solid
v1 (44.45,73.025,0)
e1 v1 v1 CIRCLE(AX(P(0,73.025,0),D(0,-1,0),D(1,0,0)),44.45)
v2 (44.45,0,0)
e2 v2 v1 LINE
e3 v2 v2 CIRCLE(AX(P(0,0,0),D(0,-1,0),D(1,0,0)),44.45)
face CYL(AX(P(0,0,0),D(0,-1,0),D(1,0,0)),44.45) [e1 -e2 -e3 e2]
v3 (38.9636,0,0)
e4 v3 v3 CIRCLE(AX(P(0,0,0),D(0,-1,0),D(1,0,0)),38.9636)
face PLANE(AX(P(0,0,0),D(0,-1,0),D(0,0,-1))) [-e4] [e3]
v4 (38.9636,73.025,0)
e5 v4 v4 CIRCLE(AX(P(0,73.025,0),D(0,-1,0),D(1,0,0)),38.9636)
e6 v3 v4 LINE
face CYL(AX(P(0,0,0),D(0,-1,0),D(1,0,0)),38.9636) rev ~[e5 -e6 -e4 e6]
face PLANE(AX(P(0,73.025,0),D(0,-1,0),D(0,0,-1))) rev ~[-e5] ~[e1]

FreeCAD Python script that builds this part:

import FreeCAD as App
import Part
import Sketcher
Q = App.Units.Quantity

doc = App.newDocument("Part")
body = doc.addObject("PartDesign::Body", "Body")

# Sketch on XZ plane
sketch1 = body.newObject("Sketcher::SketchObject", "Sketch")
sketch1.AttachmentSupport = (doc.getObject("XZ_Plane"), [""])
sketch1.MapMode = "FlatFace"
sketch1.addGeometry([
    Part.Circle(App.Vector(0, 0, 0), App.Vector(0, 0, 1), 44),
    Part.Circle(App.Vector(0, 0, 0), App.Vector(0, 0, 1), 39),
], False)
sketch1.addConstraint([
    Sketcher.Constraint("Coincident", 0, 3, -1, 1),
    Sketcher.Constraint("Coincident", 1, 3, -1, 1),
    Sketcher.Constraint("Diameter", 0, Q("3.5 in")),
    Sketcher.Constraint("Diameter", 1, Q("3.068 in")),
])
pad1 = body.newObject("PartDesign::Pad", "Pad")
pad1.Profile = sketch1
pad1.Length = Q("2.875 in")
pad1.Reversed = True

doc.recompute()
